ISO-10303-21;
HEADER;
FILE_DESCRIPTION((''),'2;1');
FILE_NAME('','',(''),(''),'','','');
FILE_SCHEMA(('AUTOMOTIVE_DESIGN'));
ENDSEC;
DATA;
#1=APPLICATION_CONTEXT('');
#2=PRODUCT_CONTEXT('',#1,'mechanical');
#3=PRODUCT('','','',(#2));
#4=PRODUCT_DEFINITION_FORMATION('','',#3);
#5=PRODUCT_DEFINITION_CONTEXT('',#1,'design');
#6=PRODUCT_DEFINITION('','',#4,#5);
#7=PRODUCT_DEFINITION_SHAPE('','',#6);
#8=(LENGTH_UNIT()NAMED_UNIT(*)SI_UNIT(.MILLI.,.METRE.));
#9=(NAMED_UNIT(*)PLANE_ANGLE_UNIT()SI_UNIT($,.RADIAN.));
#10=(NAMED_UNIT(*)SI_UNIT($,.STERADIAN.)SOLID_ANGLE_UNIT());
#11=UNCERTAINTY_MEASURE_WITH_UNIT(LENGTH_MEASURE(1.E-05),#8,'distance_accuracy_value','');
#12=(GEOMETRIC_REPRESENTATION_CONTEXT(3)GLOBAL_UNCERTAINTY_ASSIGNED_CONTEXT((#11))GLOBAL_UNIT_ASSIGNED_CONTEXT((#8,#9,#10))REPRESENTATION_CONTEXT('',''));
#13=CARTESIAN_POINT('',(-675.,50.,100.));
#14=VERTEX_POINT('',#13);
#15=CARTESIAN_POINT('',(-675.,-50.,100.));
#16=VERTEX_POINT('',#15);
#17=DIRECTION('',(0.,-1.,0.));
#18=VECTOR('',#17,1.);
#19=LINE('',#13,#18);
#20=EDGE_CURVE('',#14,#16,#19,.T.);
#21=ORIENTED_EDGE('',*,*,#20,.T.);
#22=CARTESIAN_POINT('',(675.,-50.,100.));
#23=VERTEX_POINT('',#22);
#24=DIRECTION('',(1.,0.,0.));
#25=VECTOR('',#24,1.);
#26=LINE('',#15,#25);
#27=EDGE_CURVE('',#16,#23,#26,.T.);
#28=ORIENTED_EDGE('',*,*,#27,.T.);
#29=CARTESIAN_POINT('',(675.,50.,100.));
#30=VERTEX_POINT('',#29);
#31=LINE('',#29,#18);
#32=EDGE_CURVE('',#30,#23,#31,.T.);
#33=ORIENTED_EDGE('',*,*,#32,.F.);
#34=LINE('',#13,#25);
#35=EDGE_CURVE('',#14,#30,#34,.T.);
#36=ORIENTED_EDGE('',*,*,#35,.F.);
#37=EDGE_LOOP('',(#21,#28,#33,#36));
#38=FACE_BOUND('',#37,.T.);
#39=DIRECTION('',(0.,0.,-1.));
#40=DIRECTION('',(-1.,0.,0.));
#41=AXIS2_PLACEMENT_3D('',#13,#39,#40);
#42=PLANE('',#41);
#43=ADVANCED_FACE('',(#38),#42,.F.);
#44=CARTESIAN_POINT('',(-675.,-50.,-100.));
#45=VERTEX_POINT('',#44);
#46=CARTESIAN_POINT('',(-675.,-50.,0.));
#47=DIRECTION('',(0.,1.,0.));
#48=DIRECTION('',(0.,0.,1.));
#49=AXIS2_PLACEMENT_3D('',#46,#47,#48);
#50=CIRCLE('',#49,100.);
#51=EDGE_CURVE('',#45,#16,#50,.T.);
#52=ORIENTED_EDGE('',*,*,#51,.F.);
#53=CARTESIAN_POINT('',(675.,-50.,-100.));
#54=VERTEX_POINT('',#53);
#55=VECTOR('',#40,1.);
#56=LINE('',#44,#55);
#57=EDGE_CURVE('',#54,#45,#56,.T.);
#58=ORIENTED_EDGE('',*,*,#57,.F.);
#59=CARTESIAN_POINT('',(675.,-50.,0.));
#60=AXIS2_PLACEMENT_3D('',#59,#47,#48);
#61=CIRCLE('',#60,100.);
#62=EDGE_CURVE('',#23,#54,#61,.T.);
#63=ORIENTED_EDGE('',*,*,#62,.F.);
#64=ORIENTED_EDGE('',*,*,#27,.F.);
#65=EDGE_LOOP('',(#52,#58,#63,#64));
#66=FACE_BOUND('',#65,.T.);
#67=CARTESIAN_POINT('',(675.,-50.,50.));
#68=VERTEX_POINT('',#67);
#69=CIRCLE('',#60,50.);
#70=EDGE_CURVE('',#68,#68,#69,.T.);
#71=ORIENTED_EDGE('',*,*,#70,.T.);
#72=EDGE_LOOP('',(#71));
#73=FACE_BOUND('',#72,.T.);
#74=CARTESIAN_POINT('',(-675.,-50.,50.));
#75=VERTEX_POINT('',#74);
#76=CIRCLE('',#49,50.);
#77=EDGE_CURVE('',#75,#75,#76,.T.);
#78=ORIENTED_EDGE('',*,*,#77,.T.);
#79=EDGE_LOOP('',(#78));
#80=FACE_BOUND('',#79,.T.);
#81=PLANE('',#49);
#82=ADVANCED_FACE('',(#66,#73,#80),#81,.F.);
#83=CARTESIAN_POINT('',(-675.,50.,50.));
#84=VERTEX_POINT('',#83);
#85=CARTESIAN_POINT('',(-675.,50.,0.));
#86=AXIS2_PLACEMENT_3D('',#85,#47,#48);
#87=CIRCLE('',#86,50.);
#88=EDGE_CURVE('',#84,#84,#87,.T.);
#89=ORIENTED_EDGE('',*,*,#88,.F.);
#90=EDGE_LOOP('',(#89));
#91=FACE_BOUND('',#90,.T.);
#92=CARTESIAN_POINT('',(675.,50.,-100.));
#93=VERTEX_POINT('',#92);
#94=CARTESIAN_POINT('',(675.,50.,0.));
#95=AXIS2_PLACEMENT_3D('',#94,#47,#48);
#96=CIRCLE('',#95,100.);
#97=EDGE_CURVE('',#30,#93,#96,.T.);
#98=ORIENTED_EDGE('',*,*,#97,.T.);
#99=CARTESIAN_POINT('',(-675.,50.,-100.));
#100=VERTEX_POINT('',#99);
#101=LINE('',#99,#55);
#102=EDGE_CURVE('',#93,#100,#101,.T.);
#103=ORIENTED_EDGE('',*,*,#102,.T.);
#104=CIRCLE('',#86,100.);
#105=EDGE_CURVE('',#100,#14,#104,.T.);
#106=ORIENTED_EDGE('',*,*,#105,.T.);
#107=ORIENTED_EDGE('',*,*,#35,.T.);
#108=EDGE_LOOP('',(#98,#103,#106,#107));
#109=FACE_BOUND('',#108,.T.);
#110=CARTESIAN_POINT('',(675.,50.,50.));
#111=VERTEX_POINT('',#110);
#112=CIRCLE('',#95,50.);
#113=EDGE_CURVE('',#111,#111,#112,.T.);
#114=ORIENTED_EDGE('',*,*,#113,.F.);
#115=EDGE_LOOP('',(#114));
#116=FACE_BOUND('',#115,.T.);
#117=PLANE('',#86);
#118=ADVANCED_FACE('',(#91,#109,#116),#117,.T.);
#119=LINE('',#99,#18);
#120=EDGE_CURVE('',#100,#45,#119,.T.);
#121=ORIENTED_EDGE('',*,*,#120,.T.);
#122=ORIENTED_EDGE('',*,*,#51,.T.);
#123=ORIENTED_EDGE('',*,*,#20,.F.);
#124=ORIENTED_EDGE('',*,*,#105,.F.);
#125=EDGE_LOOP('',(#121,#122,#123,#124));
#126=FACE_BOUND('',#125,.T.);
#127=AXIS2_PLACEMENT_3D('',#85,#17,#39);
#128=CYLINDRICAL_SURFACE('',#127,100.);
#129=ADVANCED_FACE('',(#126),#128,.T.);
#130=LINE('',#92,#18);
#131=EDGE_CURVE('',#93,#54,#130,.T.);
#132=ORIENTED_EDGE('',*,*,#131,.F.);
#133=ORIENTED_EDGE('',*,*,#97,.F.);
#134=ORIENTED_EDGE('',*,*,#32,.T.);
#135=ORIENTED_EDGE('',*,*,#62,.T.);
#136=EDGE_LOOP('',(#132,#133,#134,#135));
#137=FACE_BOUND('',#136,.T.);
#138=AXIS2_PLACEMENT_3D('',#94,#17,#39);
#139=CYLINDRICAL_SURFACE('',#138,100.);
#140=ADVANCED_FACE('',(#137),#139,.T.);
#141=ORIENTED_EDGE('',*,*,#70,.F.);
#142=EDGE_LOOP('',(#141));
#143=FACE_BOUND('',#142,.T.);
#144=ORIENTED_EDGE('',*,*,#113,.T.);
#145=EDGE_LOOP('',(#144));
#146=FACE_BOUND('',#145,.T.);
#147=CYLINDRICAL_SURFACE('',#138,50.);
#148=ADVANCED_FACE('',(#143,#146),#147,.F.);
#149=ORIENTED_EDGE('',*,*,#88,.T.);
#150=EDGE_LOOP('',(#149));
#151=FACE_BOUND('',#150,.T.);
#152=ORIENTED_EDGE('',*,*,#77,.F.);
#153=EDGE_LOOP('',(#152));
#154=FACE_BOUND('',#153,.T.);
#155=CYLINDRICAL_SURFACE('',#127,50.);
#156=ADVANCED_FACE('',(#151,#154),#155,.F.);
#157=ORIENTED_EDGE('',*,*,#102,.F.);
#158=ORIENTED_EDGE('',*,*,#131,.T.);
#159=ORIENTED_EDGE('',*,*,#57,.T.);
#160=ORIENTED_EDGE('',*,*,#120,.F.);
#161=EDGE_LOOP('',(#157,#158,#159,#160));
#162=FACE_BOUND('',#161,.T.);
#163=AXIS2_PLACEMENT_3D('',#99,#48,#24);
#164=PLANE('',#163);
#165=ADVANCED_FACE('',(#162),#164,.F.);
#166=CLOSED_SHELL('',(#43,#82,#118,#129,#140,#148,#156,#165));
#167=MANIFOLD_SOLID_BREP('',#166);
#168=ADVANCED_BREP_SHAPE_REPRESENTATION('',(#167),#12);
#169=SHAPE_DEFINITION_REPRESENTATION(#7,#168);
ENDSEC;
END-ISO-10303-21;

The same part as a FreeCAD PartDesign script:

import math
import FreeCAD as App
import Part
import Sketcher
from FreeCAD import Vector

doc = App.newDocument("Part")
body = doc.addObject("PartDesign::Body", "Body")

sketch1 = body.newObject("Sketcher::SketchObject", "Sketch")
sketch1.AttachmentSupport = (doc.getObject("XZ_Plane"), [""])
sketch1.MapMode = "FlatFace"
sketch1.addGeometry(Part.LineSegment(Vector(675, -100, 0), Vector(-675, -100, 0)), False)
sketch1.addGeometry(Part.ArcOfCircle(Part.Circle(Vector(-675, 0, 0), Vector(0, 0, 1), 100), math.radians(90), math.radians(270)), False)
sketch1.addGeometry(Part.LineSegment(Vector(-675, 100, 0), Vector(675, 100, 0)), False)
sketch1.addGeometry(Part.ArcOfCircle(Part.Circle(Vector(675, 0, 0), Vector(0, 0, 1), 100), math.radians(-90), math.radians(90)), False)
sketch1.addGeometry(Part.Circle(Vector(675, 0, 0), Vector(0, 0, 1), 50), False)
sketch1.addGeometry(Part.Circle(Vector(-675, 0, 0), Vector(0, 0, 1), 50), False)
sketch1.addConstraint(Sketcher.Constraint("Tangent", 0, 2, 1, 2))
sketch1.addConstraint(Sketcher.Constraint("Tangent", 1, 1, 2, 1))
sketch1.addConstraint(Sketcher.Constraint("Tangent", 2, 2, 3, 2))
sketch1.addConstraint(Sketcher.Constraint("Tangent", 3, 1, 0, 1))
sketch1.addConstraint(Sketcher.Constraint("Horizontal", 0))
sketch1.addConstraint(Sketcher.Constraint("Horizontal", 2))
sketch1.addConstraint(Sketcher.Constraint("Coincident", 4, 3, 3, 3))
sketch1.addConstraint(Sketcher.Constraint("Coincident", 5, 3, 1, 3))
sketch1.addConstraint(Sketcher.Constraint("Equal", 4, 5))
sketch1.addConstraint(Sketcher.Constraint("Symmetric", 1, 3, 3, 3, -1, 1))
sketch1.addConstraint(Sketcher.Constraint("Diameter", 4, 100.0))
sketch1.addConstraint(Sketcher.Constraint("Radius", 1, 100.0))
sketch1.addConstraint(Sketcher.Constraint("DistanceX", 0, 2, 0, 1, 1350.0))
pad1 = body.newObject("PartDesign::Pad", "Pad")
pad1.Profile = sketch1
pad1.Length = 100
pad1.Midplane = True

doc.recompute()
